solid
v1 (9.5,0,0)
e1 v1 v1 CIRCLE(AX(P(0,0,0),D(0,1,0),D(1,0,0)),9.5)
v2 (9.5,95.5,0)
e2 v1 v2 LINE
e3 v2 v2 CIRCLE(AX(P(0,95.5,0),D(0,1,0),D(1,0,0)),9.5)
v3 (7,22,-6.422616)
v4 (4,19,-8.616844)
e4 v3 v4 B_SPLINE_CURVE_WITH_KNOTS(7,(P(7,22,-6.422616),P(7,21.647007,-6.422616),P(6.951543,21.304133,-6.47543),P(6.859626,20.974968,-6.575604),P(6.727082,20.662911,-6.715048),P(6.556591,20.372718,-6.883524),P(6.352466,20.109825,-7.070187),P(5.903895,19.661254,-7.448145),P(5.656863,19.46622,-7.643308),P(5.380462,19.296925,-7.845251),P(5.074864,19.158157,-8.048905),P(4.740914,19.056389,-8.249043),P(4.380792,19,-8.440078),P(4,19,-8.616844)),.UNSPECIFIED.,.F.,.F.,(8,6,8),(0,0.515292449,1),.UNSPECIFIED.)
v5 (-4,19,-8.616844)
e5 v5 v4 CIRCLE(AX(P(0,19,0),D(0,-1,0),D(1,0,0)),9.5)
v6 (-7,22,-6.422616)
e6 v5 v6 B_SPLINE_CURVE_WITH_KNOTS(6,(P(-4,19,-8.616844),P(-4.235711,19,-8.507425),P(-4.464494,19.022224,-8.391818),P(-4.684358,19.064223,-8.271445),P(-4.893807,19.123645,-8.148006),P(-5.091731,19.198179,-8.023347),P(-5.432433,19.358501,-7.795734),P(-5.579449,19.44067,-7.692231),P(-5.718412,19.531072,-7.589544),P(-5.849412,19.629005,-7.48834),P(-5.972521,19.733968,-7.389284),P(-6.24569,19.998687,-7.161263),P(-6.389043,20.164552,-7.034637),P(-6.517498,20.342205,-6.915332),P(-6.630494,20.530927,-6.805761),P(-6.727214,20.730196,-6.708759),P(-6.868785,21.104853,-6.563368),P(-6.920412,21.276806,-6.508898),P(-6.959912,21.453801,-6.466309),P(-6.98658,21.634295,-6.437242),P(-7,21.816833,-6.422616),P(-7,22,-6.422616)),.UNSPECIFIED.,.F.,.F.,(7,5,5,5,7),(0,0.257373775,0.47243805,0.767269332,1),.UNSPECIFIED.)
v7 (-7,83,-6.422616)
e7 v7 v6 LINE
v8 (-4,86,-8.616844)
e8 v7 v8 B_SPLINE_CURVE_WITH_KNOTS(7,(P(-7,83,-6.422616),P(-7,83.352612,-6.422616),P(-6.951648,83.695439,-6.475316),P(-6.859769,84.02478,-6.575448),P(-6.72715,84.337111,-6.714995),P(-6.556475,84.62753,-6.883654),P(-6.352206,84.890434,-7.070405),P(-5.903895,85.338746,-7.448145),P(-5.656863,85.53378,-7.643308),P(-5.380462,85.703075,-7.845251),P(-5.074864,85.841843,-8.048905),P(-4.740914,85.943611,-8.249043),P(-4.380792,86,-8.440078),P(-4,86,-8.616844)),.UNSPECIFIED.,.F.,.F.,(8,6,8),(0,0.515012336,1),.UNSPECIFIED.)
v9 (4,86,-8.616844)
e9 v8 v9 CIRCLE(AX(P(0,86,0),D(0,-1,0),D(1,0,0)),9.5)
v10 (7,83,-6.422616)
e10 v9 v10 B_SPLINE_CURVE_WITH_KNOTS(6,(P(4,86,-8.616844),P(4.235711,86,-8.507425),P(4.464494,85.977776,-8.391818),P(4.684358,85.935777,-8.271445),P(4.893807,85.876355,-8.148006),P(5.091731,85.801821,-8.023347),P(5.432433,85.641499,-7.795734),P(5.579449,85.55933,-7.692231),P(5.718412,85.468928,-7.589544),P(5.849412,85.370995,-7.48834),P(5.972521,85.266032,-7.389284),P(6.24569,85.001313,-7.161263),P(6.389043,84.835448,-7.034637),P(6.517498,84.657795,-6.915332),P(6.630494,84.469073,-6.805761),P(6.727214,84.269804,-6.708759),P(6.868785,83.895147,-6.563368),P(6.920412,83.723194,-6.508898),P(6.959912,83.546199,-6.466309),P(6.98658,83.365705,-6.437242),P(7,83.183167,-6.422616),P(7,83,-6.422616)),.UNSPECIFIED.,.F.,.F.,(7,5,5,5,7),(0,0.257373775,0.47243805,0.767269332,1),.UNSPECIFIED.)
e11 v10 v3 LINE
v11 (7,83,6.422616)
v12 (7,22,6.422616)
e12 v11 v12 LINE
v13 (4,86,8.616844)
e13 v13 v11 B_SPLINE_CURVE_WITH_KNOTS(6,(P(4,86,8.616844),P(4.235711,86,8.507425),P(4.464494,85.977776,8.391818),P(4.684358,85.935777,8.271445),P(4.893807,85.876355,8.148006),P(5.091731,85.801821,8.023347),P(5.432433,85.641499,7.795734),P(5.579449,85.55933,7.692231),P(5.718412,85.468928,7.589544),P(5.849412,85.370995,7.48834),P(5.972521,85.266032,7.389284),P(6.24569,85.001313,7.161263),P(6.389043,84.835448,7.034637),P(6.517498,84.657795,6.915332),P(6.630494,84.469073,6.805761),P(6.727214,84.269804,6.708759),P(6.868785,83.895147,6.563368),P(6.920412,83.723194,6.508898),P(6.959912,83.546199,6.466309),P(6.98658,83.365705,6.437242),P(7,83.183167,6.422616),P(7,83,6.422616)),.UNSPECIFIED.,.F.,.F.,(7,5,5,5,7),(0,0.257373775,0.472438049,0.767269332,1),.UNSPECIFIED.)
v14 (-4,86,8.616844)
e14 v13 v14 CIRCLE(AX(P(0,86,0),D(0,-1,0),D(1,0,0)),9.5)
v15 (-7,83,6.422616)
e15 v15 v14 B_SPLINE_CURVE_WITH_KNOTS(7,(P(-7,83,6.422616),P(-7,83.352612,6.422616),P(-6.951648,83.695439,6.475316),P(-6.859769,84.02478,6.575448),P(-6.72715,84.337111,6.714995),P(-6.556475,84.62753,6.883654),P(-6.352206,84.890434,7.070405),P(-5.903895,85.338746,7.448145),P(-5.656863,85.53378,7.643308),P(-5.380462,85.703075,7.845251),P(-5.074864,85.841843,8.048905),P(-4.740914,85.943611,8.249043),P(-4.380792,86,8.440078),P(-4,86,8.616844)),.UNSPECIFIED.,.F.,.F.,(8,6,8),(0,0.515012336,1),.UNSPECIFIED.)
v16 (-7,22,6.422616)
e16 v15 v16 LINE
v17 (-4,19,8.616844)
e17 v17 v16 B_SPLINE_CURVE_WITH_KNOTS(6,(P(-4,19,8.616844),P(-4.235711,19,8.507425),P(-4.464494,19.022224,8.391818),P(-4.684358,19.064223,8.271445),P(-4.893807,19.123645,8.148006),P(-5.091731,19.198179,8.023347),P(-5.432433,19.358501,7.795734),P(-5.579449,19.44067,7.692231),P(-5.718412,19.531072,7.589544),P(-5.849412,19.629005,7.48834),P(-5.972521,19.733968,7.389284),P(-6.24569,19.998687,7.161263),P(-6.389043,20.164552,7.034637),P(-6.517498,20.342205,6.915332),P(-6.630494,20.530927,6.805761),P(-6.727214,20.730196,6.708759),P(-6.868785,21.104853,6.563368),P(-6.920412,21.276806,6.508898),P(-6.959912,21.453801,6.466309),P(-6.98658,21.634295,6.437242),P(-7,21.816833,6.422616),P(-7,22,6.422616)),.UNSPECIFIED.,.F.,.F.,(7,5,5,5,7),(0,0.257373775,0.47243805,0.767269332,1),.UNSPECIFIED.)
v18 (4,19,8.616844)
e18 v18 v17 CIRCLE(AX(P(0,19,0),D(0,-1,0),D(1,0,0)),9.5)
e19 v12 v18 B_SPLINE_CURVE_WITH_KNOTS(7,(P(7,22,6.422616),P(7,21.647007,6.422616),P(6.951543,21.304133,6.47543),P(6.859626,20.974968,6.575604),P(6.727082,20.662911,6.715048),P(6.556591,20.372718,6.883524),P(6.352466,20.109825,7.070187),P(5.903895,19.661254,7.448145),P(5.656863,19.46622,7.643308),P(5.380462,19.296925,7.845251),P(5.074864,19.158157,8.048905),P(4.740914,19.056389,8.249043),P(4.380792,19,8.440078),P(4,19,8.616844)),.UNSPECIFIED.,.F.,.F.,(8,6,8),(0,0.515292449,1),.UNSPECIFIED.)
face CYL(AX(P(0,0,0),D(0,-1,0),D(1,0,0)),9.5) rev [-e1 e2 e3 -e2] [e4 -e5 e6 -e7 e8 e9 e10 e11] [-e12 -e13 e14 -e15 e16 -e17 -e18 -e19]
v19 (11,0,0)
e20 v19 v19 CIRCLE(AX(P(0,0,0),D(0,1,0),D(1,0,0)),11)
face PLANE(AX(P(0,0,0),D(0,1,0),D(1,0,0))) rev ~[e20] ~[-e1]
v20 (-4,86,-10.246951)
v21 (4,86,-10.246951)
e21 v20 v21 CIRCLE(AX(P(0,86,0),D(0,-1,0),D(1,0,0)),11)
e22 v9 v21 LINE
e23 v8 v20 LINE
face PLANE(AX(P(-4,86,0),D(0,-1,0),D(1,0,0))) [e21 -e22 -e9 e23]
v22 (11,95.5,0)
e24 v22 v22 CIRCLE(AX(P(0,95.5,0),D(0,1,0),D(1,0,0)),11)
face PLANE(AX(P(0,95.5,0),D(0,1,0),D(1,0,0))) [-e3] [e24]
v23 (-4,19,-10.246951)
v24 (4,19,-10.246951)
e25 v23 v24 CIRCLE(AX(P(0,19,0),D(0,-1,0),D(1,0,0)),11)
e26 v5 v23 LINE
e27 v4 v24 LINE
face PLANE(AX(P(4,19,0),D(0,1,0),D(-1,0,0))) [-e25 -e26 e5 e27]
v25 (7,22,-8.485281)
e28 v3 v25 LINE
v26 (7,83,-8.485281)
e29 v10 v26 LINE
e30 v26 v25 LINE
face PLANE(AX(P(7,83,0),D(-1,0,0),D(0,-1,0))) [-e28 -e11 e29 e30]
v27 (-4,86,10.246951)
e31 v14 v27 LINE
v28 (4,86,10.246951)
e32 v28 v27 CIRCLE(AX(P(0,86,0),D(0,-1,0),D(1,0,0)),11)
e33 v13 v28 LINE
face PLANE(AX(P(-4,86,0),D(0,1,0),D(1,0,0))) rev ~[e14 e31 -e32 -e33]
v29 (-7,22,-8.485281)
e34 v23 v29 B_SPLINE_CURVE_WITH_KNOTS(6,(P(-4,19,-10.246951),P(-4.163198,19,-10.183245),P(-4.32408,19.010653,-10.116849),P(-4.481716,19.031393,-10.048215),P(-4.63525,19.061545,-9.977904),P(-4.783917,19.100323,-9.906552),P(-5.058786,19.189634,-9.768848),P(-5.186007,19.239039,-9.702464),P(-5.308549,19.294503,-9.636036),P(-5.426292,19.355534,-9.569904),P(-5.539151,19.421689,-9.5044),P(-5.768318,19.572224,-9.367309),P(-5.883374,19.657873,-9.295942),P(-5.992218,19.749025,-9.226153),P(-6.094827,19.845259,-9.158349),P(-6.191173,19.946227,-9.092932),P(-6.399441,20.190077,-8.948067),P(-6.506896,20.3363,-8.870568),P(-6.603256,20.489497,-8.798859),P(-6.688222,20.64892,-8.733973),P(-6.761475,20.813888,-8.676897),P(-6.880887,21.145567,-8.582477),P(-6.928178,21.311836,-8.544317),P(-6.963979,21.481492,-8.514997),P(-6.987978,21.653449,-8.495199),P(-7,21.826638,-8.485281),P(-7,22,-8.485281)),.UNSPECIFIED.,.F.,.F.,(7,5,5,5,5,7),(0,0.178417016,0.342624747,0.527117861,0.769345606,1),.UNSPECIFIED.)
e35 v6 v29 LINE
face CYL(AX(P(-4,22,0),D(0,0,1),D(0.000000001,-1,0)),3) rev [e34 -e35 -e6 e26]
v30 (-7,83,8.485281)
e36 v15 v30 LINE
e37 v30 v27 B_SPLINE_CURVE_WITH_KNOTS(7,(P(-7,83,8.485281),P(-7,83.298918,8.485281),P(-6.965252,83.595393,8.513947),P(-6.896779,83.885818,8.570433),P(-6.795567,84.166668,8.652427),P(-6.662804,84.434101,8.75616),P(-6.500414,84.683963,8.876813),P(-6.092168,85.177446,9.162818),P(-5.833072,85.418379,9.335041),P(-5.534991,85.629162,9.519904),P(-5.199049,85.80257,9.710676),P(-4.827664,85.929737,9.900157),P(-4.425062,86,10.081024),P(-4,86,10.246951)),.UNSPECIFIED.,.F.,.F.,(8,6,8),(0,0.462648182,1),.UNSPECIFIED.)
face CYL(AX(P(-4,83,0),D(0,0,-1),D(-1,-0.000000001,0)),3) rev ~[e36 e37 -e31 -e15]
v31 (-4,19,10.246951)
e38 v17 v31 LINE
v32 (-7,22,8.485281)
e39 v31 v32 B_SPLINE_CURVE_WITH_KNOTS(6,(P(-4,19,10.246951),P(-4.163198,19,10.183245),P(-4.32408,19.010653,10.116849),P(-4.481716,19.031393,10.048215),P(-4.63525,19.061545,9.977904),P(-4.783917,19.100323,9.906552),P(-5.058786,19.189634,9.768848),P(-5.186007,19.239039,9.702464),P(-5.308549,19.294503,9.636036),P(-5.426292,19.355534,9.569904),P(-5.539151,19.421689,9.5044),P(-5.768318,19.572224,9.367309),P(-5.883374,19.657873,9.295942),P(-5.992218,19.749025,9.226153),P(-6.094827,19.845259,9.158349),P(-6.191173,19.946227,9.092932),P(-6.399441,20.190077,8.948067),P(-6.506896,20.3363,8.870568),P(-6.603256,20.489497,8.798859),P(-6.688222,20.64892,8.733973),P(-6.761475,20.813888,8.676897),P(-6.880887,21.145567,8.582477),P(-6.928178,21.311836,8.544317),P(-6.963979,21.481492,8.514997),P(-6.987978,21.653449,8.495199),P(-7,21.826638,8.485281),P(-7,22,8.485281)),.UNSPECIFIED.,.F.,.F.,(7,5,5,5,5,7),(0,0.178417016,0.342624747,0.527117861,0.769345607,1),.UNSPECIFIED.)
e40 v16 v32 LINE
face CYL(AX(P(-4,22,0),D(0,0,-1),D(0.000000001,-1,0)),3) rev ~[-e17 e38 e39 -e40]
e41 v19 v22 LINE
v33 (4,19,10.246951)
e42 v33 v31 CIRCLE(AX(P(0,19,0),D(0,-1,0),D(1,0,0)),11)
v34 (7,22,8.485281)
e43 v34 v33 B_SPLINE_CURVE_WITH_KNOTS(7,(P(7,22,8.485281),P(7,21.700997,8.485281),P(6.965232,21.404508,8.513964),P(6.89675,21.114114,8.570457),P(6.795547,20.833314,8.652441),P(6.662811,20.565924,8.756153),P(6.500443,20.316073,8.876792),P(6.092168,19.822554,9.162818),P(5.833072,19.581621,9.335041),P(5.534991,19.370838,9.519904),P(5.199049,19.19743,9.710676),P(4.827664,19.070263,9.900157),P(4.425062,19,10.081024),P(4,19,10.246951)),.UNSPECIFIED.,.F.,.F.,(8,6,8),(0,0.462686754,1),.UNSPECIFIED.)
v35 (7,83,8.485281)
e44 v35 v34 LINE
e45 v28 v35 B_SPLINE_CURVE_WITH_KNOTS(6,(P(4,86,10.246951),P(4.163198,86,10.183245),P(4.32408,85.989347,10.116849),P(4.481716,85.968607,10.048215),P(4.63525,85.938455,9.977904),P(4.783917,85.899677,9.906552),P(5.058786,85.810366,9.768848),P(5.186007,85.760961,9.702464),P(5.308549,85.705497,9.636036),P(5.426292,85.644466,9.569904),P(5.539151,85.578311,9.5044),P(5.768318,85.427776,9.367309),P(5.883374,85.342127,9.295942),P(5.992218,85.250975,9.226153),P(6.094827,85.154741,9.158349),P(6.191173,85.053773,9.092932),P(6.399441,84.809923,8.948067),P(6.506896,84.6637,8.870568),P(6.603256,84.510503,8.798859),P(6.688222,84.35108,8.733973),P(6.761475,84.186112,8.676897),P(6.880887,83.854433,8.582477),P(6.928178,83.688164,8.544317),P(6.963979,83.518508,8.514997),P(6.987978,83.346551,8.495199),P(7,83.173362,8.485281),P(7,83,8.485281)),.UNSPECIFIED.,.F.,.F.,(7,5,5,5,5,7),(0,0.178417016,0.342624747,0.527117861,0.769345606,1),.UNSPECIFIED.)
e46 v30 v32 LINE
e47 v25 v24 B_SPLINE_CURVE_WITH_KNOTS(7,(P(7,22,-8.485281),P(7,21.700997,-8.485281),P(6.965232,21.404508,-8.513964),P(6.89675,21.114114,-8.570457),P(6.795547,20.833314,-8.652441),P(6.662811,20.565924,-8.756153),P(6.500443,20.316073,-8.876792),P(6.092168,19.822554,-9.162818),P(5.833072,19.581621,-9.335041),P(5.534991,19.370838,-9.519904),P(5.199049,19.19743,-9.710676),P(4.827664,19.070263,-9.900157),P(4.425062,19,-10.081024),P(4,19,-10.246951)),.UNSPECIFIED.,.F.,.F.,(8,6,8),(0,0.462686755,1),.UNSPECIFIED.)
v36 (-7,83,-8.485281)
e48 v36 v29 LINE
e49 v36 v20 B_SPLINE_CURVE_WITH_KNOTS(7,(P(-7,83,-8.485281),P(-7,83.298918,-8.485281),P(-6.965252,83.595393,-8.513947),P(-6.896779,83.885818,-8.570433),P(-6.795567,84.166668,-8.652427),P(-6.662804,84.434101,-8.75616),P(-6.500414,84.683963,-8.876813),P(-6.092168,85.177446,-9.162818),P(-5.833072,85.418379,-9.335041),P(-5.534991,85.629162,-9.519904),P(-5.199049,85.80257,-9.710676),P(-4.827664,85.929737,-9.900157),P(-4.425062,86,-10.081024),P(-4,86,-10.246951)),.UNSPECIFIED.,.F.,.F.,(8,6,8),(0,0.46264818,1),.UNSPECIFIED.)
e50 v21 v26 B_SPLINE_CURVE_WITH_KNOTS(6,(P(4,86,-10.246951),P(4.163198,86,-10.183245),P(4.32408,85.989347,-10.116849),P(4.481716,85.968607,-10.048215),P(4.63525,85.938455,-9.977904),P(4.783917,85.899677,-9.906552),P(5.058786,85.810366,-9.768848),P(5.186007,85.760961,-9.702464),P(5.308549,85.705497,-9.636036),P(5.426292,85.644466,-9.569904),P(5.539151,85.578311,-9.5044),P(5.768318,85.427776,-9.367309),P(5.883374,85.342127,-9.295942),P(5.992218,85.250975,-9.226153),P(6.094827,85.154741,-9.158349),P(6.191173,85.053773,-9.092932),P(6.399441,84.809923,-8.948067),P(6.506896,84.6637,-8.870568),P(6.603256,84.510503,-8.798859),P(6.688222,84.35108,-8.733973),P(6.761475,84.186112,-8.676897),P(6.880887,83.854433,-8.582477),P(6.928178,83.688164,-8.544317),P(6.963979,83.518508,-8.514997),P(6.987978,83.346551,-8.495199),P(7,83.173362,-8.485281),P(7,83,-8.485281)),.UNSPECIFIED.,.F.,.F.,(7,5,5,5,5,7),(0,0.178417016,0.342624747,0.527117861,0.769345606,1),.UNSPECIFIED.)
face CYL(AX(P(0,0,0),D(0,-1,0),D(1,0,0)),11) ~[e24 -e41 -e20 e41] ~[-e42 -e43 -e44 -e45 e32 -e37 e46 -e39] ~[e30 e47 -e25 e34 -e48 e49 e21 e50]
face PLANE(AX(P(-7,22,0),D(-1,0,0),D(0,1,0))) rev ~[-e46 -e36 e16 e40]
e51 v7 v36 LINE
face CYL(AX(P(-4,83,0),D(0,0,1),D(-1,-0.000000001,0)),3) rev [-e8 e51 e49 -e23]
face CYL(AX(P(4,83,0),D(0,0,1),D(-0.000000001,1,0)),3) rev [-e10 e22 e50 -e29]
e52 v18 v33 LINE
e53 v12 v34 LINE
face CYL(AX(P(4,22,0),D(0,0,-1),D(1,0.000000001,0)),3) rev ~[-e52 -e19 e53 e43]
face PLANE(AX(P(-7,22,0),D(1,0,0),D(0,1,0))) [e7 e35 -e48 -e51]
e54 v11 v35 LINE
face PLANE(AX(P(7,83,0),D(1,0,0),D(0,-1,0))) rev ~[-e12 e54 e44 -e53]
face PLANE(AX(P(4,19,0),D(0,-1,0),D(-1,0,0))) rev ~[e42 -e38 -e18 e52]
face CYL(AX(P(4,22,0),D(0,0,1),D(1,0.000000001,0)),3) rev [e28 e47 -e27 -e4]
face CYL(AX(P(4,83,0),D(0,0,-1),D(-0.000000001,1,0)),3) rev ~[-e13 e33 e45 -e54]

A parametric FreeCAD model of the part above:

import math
import FreeCAD as App
import Part
import Sketcher
from FreeCAD import Vector

doc = App.newDocument("Part")
body = doc.addObject("PartDesign::Body", "Body")

sketch1 = body.newObject("Sketcher::SketchObject", "Sketch")
sketch1.AttachmentSupport = (doc.getObject("XZ_Plane"), [""])
sketch1.MapMode = "FlatFace"
sketch1.addGeometry([
    Part.Circle(Vector(0, 0, 0), Vector(0, 0, 1), 11),
    Part.Circle(Vector(0, 0, 0), Vector(0, 0, 1), 9.5),
], False)
sketch1.addConstraint([
    Sketcher.Constraint("Coincident", 0, 3, -1, 1),
    Sketcher.Constraint("Coincident", 1, 3, -1, 1),
    Sketcher.Constraint("Diameter", 0, 22.0),
    Sketcher.Constraint("Diameter", 1, 19.0),
])
pad1 = body.newObject("PartDesign::Pad", "Pad")
pad1.Profile = sketch1
pad1.Length = 95.5
pad1.Reversed = True

sketch2 = body.newObject("Sketcher::SketchObject", "Sketch001")
sketch2.AttachmentSupport = (doc.getObject("XY_Plane"), [""])
sketch2.MapMode = "FlatFace"
sketch2.addGeometry([
    Part.ArcOfCircle(Part.Circle(Vector(-4, 83, 0), Vector(0, 0, 1), 3), math.radians(90), math.radians(180)),
    Part.LineSegment(Vector(-7, 83, 0), Vector(-7, 22, 0)),
    Part.ArcOfCircle(Part.Circle(Vector(-4, 22, 0), Vector(0, 0, 1), 3), math.radians(180), math.radians(270)),
    Part.LineSegment(Vector(-4, 19, 0), Vector(4, 19, 0)),
    Part.ArcOfCircle(Part.Circle(Vector(4, 22, 0), Vector(0, 0, 1), 3), math.radians(-90), math.radians(0)),
    Part.LineSegment(Vector(7, 22, 0), Vector(7, 83, 0)),
    Part.ArcOfCircle(Part.Circle(Vector(4, 83, 0), Vector(0, 0, 1), 3), math.radians(0), math.radians(90)),
    Part.LineSegment(Vector(4, 86, 0), Vector(-4, 86, 0)),
], False)
sketch2.addConstraint([
    Sketcher.Constraint("Tangent", 0, 2, 1, 1),
    Sketcher.Constraint("Tangent", 1, 2, 2, 1),
    Sketcher.Constraint("Tangent", 2, 2, 3, 1),
    Sketcher.Constraint("Tangent", 3, 2, 4, 1),
    Sketcher.Constraint("Tangent", 4, 2, 5, 1),
    Sketcher.Constraint("Tangent", 5, 2, 6, 1),
    Sketcher.Constraint("Tangent", 6, 2, 7, 1),
    Sketcher.Constraint("Tangent", 7, 2, 0, 1),
    Sketcher.Constraint("Vertical", 1),
    Sketcher.Constraint("Horizontal", 3),
    Sketcher.Constraint("Vertical", 5),
    Sketcher.Constraint("Horizontal", 7),
    Sketcher.Constraint("Equal", 0, 2),
    Sketcher.Constraint("Equal", 2, 4),
    Sketcher.Constraint("Equal", 4, 6),
    Sketcher.Constraint("Radius", 0, 3.0),
    Sketcher.Constraint("DistanceX", 3, 1, 3, 2, 8.0),
    Sketcher.Constraint("DistanceY", 1, 2, 1, 1, 61.0),
    Sketcher.Constraint("DistanceX", 0, 3, -1, 1, 4.0),
    Sketcher.Constraint("DistanceY", -1, 1, 0, 3, 83.0),
])
pocket1 = body.newObject("PartDesign::Pocket", "Pocket")
pocket1.Profile = sketch2
pocket1.Type = "ThroughAll"
pocket1.Midplane = True

doc.recompute()
